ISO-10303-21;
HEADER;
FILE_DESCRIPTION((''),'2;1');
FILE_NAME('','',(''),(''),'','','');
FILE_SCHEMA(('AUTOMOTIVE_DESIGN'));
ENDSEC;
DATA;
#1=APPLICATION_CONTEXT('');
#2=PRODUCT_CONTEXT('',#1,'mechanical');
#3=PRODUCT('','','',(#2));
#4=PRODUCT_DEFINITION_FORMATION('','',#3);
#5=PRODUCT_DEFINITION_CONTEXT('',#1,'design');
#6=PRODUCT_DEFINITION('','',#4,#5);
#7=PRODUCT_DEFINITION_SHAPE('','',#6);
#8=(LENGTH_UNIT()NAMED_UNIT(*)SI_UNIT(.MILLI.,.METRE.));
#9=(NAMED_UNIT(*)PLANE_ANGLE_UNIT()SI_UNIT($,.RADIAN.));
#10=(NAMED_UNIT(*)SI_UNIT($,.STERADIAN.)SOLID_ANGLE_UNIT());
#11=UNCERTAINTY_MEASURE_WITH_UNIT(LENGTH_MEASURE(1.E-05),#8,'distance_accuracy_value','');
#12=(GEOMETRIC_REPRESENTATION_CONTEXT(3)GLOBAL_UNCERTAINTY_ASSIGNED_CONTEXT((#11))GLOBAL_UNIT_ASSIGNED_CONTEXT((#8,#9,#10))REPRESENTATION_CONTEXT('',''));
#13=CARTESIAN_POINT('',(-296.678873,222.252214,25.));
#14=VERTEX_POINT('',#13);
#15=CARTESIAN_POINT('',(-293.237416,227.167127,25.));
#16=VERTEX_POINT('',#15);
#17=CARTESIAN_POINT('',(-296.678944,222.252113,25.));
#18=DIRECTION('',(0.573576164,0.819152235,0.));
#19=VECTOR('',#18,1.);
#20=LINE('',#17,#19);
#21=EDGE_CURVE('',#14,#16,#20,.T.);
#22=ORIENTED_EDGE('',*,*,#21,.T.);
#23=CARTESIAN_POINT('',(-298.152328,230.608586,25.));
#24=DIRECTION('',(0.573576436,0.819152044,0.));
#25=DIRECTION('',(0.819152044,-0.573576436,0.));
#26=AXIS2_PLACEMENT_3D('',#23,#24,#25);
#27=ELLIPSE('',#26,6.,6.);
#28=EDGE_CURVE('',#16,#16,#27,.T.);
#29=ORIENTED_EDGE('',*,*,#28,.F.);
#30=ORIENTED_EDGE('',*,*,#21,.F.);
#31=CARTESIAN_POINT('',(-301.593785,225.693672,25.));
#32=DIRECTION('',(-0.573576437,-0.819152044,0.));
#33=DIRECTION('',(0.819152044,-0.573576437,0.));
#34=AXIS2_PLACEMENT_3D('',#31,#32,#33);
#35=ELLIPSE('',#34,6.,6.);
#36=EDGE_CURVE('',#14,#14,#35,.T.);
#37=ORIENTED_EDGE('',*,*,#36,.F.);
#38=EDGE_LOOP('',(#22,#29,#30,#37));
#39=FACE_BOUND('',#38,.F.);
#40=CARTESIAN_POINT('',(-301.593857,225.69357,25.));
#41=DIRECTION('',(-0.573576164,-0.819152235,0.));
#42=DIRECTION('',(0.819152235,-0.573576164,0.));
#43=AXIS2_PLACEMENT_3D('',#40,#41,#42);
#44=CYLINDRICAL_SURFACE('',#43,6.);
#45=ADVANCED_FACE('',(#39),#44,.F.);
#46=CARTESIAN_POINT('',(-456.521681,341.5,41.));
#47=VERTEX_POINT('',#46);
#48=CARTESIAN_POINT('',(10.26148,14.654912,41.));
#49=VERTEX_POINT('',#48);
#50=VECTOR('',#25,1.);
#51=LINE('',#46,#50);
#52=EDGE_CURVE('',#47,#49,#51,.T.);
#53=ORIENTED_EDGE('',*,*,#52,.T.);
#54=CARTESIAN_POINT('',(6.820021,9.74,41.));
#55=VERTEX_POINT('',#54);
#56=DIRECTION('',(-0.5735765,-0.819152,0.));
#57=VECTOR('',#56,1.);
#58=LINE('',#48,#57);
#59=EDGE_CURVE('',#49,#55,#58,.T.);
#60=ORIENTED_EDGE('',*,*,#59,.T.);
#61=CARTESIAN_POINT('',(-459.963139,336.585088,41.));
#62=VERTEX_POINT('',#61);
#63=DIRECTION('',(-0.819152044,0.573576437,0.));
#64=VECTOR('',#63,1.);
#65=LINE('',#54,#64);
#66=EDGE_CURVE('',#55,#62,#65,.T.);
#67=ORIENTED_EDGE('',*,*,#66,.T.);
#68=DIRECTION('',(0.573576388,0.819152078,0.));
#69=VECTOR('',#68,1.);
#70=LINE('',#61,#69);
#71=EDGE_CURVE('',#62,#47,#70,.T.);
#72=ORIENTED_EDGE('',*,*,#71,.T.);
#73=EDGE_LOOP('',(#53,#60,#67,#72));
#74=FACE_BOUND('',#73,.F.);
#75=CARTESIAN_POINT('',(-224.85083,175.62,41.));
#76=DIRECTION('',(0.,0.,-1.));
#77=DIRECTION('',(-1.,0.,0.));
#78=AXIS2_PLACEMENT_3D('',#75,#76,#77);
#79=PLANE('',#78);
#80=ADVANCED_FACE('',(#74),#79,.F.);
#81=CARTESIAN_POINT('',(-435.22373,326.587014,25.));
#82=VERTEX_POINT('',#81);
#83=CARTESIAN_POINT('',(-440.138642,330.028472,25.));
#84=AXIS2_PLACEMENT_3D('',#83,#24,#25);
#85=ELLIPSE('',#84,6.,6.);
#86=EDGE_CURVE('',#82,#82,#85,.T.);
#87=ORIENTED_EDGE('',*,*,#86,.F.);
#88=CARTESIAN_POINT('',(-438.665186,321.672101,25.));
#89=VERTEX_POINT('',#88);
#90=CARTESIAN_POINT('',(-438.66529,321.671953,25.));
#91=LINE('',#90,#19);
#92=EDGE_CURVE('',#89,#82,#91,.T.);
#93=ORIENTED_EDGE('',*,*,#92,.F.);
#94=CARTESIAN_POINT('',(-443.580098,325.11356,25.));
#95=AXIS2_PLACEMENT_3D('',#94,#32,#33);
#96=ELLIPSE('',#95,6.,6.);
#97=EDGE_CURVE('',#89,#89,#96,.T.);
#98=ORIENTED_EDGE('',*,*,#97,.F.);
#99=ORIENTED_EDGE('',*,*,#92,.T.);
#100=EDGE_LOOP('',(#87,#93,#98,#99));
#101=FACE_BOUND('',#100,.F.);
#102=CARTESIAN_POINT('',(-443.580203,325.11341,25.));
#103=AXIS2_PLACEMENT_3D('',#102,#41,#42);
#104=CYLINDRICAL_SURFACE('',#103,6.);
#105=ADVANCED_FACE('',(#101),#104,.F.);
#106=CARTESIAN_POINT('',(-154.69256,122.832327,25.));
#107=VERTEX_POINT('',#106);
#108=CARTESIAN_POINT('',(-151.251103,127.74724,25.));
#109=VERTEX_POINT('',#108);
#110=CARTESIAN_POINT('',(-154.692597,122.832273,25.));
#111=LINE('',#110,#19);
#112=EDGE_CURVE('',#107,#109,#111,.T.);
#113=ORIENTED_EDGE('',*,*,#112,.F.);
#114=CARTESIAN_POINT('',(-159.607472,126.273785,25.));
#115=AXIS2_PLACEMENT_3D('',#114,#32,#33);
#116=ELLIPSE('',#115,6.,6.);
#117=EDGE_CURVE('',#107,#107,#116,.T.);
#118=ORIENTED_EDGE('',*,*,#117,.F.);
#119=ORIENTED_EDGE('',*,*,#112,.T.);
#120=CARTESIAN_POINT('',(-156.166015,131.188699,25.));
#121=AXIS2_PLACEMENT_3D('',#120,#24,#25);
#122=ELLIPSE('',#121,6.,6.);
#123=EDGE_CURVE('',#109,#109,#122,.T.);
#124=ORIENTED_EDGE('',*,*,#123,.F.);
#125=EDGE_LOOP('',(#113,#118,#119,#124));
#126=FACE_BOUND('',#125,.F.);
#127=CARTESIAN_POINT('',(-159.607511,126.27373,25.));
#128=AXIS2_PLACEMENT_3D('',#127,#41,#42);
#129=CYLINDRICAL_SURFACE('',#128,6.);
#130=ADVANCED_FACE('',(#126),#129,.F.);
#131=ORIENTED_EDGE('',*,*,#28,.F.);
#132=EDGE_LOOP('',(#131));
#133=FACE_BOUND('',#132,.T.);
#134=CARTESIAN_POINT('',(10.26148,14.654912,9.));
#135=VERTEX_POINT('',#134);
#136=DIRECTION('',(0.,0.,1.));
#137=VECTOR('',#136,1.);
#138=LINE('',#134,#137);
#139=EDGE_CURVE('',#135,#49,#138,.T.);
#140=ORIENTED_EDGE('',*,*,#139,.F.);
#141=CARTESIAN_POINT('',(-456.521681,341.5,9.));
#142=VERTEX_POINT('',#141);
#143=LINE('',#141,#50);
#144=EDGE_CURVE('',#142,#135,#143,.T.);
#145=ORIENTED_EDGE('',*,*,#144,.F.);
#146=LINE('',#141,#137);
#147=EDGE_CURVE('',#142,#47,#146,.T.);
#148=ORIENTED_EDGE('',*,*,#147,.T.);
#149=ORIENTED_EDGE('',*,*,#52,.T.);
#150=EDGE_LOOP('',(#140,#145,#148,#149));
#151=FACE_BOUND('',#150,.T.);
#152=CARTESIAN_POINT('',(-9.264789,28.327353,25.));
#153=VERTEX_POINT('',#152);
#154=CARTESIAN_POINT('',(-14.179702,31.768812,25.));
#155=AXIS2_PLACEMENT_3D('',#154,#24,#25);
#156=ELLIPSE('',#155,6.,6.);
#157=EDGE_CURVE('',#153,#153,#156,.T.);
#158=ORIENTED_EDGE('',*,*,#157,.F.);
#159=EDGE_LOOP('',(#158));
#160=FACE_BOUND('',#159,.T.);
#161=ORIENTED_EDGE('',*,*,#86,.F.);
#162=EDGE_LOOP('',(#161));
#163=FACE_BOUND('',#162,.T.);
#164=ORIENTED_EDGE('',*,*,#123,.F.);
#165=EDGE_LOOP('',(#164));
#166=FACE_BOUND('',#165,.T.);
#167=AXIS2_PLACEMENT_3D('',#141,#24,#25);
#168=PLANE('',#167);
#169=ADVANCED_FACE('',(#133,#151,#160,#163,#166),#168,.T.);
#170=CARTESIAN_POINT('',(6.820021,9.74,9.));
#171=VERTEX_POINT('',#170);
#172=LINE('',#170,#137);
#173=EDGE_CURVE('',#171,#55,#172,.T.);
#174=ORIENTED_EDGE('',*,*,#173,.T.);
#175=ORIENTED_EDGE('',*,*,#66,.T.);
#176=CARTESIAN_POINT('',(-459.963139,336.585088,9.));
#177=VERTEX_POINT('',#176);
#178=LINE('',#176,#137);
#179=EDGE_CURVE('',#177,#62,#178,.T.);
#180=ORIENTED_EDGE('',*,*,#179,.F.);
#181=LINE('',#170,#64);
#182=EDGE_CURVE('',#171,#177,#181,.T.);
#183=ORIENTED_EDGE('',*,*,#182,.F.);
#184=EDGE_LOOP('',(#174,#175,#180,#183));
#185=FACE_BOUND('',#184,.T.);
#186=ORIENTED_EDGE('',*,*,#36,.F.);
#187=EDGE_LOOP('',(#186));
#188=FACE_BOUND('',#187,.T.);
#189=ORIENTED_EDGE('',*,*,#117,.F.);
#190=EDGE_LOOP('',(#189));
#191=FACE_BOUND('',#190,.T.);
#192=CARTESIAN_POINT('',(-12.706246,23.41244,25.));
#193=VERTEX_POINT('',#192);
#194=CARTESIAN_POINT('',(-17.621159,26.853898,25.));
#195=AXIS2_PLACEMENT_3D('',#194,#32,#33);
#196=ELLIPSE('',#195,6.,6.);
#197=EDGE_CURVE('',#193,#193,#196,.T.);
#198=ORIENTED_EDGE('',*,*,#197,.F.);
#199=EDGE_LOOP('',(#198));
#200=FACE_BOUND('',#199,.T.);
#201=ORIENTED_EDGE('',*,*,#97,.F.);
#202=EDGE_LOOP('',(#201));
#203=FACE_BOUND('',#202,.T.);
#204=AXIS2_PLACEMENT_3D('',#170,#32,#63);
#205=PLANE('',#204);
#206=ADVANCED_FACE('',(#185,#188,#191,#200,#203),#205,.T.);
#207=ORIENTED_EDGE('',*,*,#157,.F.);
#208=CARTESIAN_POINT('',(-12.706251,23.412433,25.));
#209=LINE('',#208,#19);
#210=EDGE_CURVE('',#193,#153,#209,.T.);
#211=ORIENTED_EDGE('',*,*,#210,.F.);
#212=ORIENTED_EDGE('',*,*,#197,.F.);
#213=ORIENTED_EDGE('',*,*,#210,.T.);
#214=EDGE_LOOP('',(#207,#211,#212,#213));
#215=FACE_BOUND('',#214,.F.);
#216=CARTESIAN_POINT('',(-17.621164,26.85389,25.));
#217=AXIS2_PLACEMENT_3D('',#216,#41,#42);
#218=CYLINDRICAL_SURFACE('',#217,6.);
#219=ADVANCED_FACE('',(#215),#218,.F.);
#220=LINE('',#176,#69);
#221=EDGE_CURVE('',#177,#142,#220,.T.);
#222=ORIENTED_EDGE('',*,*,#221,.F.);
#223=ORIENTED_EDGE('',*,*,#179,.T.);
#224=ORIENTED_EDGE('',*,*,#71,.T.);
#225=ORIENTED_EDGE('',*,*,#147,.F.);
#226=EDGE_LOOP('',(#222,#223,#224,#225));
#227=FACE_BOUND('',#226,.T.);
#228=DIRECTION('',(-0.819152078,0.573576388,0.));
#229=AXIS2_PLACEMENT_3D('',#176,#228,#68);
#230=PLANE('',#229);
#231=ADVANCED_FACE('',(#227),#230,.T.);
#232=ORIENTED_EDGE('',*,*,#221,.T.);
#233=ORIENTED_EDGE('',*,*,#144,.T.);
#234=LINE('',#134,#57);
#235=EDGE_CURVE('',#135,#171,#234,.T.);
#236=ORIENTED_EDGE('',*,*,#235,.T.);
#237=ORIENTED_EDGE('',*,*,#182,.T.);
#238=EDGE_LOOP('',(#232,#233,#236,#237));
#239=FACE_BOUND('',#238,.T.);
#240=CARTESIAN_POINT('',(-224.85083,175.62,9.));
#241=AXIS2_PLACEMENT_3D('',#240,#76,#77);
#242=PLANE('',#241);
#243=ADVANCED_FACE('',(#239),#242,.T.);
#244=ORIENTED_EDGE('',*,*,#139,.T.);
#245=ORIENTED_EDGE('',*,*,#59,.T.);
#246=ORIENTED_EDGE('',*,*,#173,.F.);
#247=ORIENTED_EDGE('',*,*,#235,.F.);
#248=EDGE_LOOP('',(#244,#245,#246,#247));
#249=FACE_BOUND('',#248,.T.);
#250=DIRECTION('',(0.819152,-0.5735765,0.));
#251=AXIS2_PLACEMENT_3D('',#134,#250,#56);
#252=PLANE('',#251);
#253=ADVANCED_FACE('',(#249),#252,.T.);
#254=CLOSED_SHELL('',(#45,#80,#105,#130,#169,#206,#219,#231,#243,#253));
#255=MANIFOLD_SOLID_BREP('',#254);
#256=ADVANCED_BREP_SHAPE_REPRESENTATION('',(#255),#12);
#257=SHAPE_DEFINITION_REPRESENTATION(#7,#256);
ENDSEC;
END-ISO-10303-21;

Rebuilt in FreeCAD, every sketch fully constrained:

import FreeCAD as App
import Part
import Sketcher
from FreeCAD import Vector
Q = App.Units.Quantity

doc = App.newDocument("Part")
params = doc.addObject("Spreadsheet::Sheet", "Params")
for row, (alias, value) in enumerate([
    ("sketch1_length", "5.999999 mm"),
    ("pad1_length", "32 mm"),
    ("sketch2_diameter", "12 mm"),
    ("linearpattern_pitch", "173.333283 mm"),
], start=1):
    params.set(f"A{row}", alias)
    params.set(f"B{row}", "=" + value)
    params.setAlias(f"B{row}", alias)

body = doc.addObject("PartDesign::Body", "Body")

# Sketch on XY plane
sketch1 = body.newObject("Sketcher::SketchObject", "Sketch")
sketch1.AttachmentSupport = (doc.getObject("XY_Plane"), [""])
sketch1.MapMode = "FlatFace"
sketch1.addGeometry(Part.LineSegment(Vector(10, 15, 0), Vector(-457, 342, 0)), False)
sketch1.addGeometry(Part.LineSegment(Vector(-457, 342, 0), Vector(-460, 337, 0)), False)
sketch1.addGeometry(Part.LineSegment(Vector(-460, 337, 0), Vector(7, 10, 0)), False)
sketch1.addGeometry(Part.LineSegment(Vector(7, 10, 0), Vector(10, 15, 0)), False)
sketch1.addConstraint(Sketcher.Constraint("Coincident", 0, 2, 1, 1))
sketch1.addConstraint(Sketcher.Constraint("Coincident", 1, 2, 2, 1))
sketch1.addConstraint(Sketcher.Constraint("Coincident", 2, 2, 3, 1))
sketch1.addConstraint(Sketcher.Constraint("Coincident", 3, 2, 0, 1))
sketch1.addConstraint(Sketcher.Constraint("Perpendicular", 0, 1))
sketch1.addConstraint(Sketcher.Constraint("Perpendicular", 1, 2))
sketch1.addConstraint(Sketcher.Constraint("Perpendicular", 2, 3))
sketch1.addConstraint(Sketcher.Constraint("Angle", 0, Q("145 deg")))
sketch1.addConstraint(Sketcher.Constraint("Distance", 1, 5.999999))
sketch1.addConstraint(Sketcher.Constraint("DistanceY", -1, 1, 0, 2, 341.5))
sketch1.addConstraint(Sketcher.Constraint("DistanceY", -1, 1, 2, 2, 9.74))
sketch1.addConstraint(Sketcher.Constraint("DistanceX", 0, 2, -1, 1, 456.521681))
sketch1.setExpression("Constraints[8]", "Params.sketch1_length")
pad1 = body.newObject("PartDesign::Pad", "Pad")
pad1.Profile = sketch1
pad1.setExpression("Length", "Params.pad1_length")

# Sketch on an angled plane
sketch2 = body.newObject("Sketcher::SketchObject", "Sketch001")
sketch2.Placement = App.Placement(Vector(6.820021, 9.74, 0), App.Rotation(Vector(0.819152235, -0.573576164, 0), Vector(0, 0, 1), Vector(-0.573576164, -0.819152235, 0), "ZXY"))
sketch2.addGeometry(Part.Circle(Vector(-550, 16, 0), Vector(0, 0, 1), 6), False)
sketch2.addConstraint(Sketcher.Constraint("Diameter", 0, 12.0))
sketch2.addConstraint(Sketcher.Constraint("DistanceY", -1, 1, 0, 3, 16.0))
sketch2.addConstraint(Sketcher.Constraint("DistanceX", 0, 3, -1, 1, 549.837021))
sketch2.setExpression("Constraints[0]", "Params.sketch2_diameter")
pocket1 = body.newObject("PartDesign::Pocket", "Pocket")
pocket1.Profile = sketch2
pocket1.Type = "ThroughAll"
doc.recompute()

datumline = body.newObject("PartDesign::Line", "DatumLine")
datumline.Placement = App.Placement(Vector(0, 0, 0), App.Rotation(Vector(0, 0, 1), Vector(0.819152235, -0.573576164, 0)))
linearpattern = body.newObject("PartDesign::LinearPattern", "LinearPattern")
linearpattern.Originals = [pocket1]
linearpattern.Direction = (datumline, [""])
linearpattern.Mode = "offset"
linearpattern.setExpression("Offset", "Params.linearpattern_pitch")
linearpattern.Occurrences = 4
body.Tip = linearpattern
body2 = doc.addObject("PartDesign::Body", "Body001")
doc.recompute()

body.Placement = App.Placement(Vector(0, 0, 9), App.Rotation(Vector(0, 0, 1), 0))
boolean = body2.newObject("PartDesign::Boolean", "Boolean")
boolean.Type = "Fuse"
boolean.addObjects([body])

doc.recompute()
